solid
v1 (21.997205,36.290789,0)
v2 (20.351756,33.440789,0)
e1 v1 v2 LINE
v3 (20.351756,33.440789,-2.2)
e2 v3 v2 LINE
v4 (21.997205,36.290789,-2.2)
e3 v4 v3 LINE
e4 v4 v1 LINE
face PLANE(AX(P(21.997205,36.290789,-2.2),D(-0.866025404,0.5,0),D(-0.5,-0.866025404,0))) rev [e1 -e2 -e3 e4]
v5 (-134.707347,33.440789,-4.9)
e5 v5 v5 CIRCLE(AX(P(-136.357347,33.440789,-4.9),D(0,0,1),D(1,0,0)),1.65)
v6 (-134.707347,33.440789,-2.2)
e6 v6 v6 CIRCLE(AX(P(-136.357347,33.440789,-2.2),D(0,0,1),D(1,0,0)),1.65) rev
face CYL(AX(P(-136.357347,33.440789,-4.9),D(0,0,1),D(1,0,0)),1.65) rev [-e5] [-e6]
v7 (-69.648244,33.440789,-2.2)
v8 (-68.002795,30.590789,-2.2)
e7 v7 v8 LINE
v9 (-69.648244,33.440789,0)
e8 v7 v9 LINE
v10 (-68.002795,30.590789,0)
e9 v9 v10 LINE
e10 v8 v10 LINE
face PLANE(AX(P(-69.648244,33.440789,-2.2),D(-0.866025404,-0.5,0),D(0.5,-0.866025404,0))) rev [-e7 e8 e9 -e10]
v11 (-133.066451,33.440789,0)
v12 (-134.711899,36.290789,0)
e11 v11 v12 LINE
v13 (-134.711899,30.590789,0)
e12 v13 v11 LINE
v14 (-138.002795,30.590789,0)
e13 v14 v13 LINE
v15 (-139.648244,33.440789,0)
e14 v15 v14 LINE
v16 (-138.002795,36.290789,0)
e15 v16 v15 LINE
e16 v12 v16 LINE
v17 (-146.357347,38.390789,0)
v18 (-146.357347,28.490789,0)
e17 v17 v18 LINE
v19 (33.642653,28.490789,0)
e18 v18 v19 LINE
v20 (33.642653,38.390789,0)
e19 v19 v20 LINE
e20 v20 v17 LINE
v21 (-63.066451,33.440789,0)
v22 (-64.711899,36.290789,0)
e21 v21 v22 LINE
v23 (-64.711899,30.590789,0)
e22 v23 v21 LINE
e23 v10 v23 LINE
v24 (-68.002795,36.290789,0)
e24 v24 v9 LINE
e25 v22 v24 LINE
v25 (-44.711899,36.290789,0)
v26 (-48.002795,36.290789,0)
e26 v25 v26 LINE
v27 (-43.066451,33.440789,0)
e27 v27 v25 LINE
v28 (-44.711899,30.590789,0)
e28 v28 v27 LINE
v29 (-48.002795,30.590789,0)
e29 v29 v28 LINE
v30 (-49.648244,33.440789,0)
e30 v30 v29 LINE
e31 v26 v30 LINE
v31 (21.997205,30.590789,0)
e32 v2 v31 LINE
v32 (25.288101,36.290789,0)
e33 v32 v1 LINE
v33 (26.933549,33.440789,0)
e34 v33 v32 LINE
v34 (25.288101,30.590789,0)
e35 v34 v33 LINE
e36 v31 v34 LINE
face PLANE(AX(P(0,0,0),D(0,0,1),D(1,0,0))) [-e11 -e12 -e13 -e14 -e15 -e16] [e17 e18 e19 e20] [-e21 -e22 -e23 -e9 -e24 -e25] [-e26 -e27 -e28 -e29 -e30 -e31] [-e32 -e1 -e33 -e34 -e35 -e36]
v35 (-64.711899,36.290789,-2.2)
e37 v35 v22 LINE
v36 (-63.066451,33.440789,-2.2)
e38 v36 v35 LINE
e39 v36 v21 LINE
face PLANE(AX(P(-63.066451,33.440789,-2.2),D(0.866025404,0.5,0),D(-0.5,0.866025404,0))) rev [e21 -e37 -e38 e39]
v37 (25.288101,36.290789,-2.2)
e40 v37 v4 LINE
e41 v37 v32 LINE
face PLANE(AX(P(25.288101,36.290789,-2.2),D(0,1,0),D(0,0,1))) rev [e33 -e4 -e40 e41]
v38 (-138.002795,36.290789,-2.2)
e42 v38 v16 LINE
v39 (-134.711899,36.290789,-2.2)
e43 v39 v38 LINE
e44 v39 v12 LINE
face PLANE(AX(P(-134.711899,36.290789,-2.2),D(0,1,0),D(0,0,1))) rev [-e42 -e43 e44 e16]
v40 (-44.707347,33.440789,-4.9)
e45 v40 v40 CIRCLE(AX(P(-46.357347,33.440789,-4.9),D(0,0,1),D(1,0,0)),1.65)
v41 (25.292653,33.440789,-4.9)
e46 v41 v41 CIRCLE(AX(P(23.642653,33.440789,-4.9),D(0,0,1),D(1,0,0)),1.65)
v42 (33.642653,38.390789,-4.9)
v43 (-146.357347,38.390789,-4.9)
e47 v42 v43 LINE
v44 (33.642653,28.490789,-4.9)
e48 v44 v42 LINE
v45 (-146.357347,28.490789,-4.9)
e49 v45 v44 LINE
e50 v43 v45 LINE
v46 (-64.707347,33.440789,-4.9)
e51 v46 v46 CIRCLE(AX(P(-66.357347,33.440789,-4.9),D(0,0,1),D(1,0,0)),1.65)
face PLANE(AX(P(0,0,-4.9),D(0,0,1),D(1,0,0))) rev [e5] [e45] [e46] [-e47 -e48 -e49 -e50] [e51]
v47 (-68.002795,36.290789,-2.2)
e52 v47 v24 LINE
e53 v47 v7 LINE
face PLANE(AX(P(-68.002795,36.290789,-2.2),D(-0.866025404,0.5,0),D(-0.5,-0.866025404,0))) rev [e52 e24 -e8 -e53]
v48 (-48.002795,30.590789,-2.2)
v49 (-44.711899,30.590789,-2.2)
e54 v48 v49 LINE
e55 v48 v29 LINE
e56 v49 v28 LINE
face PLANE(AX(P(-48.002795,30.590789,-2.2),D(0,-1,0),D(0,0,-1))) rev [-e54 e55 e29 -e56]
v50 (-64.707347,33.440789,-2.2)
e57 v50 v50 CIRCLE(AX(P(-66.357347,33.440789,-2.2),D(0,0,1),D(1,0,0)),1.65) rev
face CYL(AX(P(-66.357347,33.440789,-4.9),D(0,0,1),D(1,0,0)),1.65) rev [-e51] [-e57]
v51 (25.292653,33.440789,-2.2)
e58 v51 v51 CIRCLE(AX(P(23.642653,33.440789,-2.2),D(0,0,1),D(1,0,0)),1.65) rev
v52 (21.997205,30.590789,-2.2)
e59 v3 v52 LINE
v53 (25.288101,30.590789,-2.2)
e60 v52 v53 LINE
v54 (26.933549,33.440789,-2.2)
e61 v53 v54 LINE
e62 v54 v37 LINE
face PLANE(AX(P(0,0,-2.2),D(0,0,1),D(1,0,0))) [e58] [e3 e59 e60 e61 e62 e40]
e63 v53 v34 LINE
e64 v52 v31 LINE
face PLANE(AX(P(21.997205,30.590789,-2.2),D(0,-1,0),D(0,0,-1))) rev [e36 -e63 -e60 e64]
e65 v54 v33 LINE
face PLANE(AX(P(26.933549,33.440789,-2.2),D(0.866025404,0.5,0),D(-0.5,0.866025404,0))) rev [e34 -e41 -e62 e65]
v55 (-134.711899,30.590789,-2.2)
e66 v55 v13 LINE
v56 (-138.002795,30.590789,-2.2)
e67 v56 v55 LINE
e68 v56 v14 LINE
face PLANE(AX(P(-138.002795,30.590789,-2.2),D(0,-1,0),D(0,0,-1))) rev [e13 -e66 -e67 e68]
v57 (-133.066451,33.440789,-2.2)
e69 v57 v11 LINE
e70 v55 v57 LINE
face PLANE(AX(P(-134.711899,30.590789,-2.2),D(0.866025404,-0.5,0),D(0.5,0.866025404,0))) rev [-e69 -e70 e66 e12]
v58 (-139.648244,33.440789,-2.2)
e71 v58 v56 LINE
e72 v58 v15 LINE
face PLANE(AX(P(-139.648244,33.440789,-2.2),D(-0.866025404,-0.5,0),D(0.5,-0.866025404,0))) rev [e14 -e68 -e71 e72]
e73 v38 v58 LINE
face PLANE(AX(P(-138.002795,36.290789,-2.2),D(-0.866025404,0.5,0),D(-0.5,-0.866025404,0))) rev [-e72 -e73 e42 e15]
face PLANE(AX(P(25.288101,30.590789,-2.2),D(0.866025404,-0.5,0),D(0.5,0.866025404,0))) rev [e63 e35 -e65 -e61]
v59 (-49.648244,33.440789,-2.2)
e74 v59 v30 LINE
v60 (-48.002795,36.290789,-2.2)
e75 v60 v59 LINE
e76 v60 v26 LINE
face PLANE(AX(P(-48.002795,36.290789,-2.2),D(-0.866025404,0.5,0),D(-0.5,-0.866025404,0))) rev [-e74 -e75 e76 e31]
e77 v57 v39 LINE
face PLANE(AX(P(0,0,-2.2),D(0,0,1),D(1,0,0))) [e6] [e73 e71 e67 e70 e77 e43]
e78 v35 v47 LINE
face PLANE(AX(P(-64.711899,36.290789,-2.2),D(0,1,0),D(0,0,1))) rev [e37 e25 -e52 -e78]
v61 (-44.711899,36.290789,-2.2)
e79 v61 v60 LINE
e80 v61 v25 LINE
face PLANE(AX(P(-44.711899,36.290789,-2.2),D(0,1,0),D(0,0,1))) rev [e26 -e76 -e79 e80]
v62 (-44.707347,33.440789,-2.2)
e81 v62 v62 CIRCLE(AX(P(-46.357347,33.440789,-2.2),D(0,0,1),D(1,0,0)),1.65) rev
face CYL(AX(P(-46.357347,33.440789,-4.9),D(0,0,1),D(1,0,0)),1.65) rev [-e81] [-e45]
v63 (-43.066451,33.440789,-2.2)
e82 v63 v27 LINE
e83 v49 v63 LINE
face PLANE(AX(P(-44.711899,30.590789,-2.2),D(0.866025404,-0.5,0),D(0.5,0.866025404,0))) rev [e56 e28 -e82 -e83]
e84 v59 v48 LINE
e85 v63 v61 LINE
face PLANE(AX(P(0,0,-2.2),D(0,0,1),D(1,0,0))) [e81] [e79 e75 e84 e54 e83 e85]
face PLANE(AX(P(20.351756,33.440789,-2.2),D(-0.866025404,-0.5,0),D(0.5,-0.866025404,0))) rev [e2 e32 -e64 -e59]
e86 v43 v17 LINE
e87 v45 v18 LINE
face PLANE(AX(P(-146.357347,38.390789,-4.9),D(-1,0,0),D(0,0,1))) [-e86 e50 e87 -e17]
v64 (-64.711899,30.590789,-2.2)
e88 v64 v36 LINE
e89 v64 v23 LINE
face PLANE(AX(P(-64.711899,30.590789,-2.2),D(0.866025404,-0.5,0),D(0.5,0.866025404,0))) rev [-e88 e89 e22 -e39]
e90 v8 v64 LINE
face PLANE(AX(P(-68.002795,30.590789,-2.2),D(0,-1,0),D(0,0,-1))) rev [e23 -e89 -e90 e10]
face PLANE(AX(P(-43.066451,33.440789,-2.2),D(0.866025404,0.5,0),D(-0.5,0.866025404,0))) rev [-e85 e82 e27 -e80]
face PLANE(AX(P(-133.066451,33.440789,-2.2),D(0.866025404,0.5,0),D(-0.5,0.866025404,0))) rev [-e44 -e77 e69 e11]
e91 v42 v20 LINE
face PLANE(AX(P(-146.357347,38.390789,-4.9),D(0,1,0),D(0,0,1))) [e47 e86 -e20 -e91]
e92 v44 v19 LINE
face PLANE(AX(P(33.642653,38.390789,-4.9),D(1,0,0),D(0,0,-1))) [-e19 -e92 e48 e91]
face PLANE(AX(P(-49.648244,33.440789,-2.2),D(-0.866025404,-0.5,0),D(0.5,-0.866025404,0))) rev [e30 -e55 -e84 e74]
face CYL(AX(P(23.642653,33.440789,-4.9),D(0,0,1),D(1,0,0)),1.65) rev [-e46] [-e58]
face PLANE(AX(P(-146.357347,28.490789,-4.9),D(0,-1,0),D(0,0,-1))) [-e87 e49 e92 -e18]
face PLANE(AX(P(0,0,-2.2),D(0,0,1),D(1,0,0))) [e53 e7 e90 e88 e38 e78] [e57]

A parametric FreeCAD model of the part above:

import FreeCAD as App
import Part
import Sketcher
Q = App.Units.Quantity

doc = App.newDocument("Part")
body = doc.addObject("PartDesign::Body", "Body")

# Sketch on XY plane
sketch1 = body.newObject("Sketcher::SketchObject", "Sketch")
sketch1.AttachmentSupport = (doc.getObject("XY_Plane"), [""])
sketch1.MapMode = "FlatFace"
sketch1.addGeometry([
    Part.LineSegment(App.Vector(-146, 38, 0), App.Vector(-146, 28, 0)),
    Part.LineSegment(App.Vector(-146, 28, 0), App.Vector(34, 28, 0)),
    Part.LineSegment(App.Vector(34, 28, 0), App.Vector(34, 38, 0)),
    Part.LineSegment(App.Vector(34, 38, 0), App.Vector(-146, 38, 0)),
], False)
sketch1.addConstraint([
    Sketcher.Constraint("Coincident", 0, 2, 1, 1),
    Sketcher.Constraint("Coincident", 1, 2, 2, 1),
    Sketcher.Constraint("Coincident", 2, 2, 3, 1),
    Sketcher.Constraint("Coincident", 3, 2, 0, 1),
    Sketcher.Constraint("Vertical", 0),
    Sketcher.Constraint("Horizontal", 1),
    Sketcher.Constraint("Vertical", 2),
    Sketcher.Constraint("Horizontal", 3),
    Sketcher.Constraint("DistanceX", 1, 1, 1, 2, 180.0),
    Sketcher.Constraint("DistanceY", 0, 2, 0, 1, 9.9),
    Sketcher.Constraint("DistanceY", -1, 1, 0, 2, 28.490789),
    Sketcher.Constraint("DistanceX", 0, 2, -1, 1, 146.357347),
])
pad1 = body.newObject("PartDesign::Pad", "Pad")
pad1.Profile = sketch1
pad1.Length = 4.9
pad1.Reversed = True

# Sketch on XY plane
sketch2 = body.newObject("Sketcher::SketchObject", "Sketch001")
sketch2.AttachmentSupport = (doc.getObject("XY_Plane"), [""])
sketch2.MapMode = "FlatFace"
sketch2.addGeometry([
    Part.Circle(App.Vector(-136.4, 33.4, 0), App.Vector(0, 0, 1), 1.6),
    Part.Circle(App.Vector(-66.4, 33.4, 0), App.Vector(0, 0, 1), 1.6),
    Part.Circle(App.Vector(-46.4, 33.4, 0), App.Vector(0, 0, 1), 1.6),
    Part.Circle(App.Vector(23.6, 33.4, 0), App.Vector(0, 0, 1), 1.6),
], False)
sketch2.addConstraint([
    Sketcher.Constraint("Equal", 0, 1),
    Sketcher.Constraint("Equal", 1, 2),
    Sketcher.Constraint("Equal", 2, 3),
    Sketcher.Constraint("Horizontal", 0, 3, 1, 3),
    Sketcher.Constraint("Horizontal", 1, 3, 2, 3),
    Sketcher.Constraint("Horizontal", 2, 3, 3, 3),
    Sketcher.Constraint("Diameter", 0, 3.3),
    Sketcher.Constraint("DistanceX", 0, 3, 1, 3, 70.0),
    Sketcher.Constraint("DistanceX", 1, 3, 2, 3, 20.0),
    Sketcher.Constraint("DistanceX", 2, 3, 3, 3, 70.0),
    Sketcher.Constraint("DistanceY", -1, 1, 0, 3, 33.440789),
    Sketcher.Constraint("DistanceX", 0, 3, -1, 1, 136.357347),
])
pocket1 = body.newObject("PartDesign::Pocket", "Pocket")
pocket1.Profile = sketch2
pocket1.Type = "ThroughAll"

# Sketch on XY plane
sketch3 = body.newObject("Sketcher::SketchObject", "Sketch002")
sketch3.AttachmentSupport = (doc.getObject("XY_Plane"), [""])
sketch3.MapMode = "FlatFace"
sketch3.addGeometry([
    Part.LineSegment(App.Vector(-134.7, 30.6, 0), App.Vector(-133.1, 33.4, 0)),  # 0
    Part.LineSegment(App.Vector(-133.1, 33.4, 0), App.Vector(-134.7, 36.3, 0)),  # 1
    Part.LineSegment(App.Vector(-134.7, 36.3, 0), App.Vector(-138, 36.3, 0)),  # 2
    Part.LineSegment(App.Vector(-138, 36.3, 0), App.Vector(-139.6, 33.4, 0)),  # 3
    Part.LineSegment(App.Vector(-139.6, 33.4, 0), App.Vector(-138, 30.6, 0)),  # 4
    Part.LineSegment(App.Vector(-138, 30.6, 0), App.Vector(-134.7, 30.6, 0)),  # 5
    Part.LineSegment(App.Vector(-64.7, 30.6, 0), App.Vector(-63.1, 33.4, 0)),  # 6
    Part.LineSegment(App.Vector(-63.1, 33.4, 0), App.Vector(-64.7, 36.3, 0)),  # 7
    Part.LineSegment(App.Vector(-64.7, 36.3, 0), App.Vector(-68, 36.3, 0)),  # 8
    Part.LineSegment(App.Vector(-68, 36.3, 0), App.Vector(-69.6, 33.4, 0)),  # 9
    Part.LineSegment(App.Vector(-69.6, 33.4, 0), App.Vector(-68, 30.6, 0)),  # 10
    Part.LineSegment(App.Vector(-68, 30.6, 0), App.Vector(-64.7, 30.6, 0)),  # 11
    Part.LineSegment(App.Vector(-44.7, 30.6, 0), App.Vector(-43.1, 33.4, 0)),  # 12
    Part.LineSegment(App.Vector(-43.1, 33.4, 0), App.Vector(-44.7, 36.3, 0)),  # 13
    Part.LineSegment(App.Vector(-44.7, 36.3, 0), App.Vector(-48, 36.3, 0)),  # 14
    Part.LineSegment(App.Vector(-48, 36.3, 0), App.Vector(-49.6, 33.4, 0)),  # 15
    Part.LineSegment(App.Vector(-49.6, 33.4, 0), App.Vector(-48, 30.6, 0)),  # 16
    Part.LineSegment(App.Vector(-48, 30.6, 0), App.Vector(-44.7, 30.6, 0)),  # 17
    Part.LineSegment(App.Vector(25.3, 30.6, 0), App.Vector(26.9, 33.4, 0)),  # 18
    Part.LineSegment(App.Vector(26.9, 33.4, 0), App.Vector(25.3, 36.3, 0)),  # 19
    Part.LineSegment(App.Vector(25.3, 36.3, 0), App.Vector(22, 36.3, 0)),  # 20
    Part.LineSegment(App.Vector(22, 36.3, 0), App.Vector(20.4, 33.4, 0)),  # 21
    Part.LineSegment(App.Vector(20.4, 33.4, 0), App.Vector(22, 30.6, 0)),  # 22
    Part.LineSegment(App.Vector(22, 30.6, 0), App.Vector(25.3, 30.6, 0)),  # 23
], False)
sketch3.addConstraint([
    Sketcher.Constraint("Coincident", 0, 2, 1, 1),
    Sketcher.Constraint("Coincident", 1, 2, 2, 1),
    Sketcher.Constraint("Coincident", 2, 2, 3, 1),
    Sketcher.Constraint("Coincident", 3, 2, 4, 1),
    Sketcher.Constraint("Coincident", 4, 2, 5, 1),
    Sketcher.Constraint("Coincident", 5, 2, 0, 1),
    Sketcher.Constraint("Coincident", 6, 2, 7, 1),
    Sketcher.Constraint("Coincident", 7, 2, 8, 1),
    Sketcher.Constraint("Coincident", 8, 2, 9, 1),
    Sketcher.Constraint("Coincident", 9, 2, 10, 1),
    Sketcher.Constraint("Coincident", 10, 2, 11, 1),
    Sketcher.Constraint("Coincident", 11, 2, 6, 1),
    Sketcher.Constraint("Coincident", 12, 2, 13, 1),
    Sketcher.Constraint("Coincident", 13, 2, 14, 1),
    Sketcher.Constraint("Coincident", 14, 2, 15, 1),
    Sketcher.Constraint("Coincident", 15, 2, 16, 1),
    Sketcher.Constraint("Coincident", 16, 2, 17, 1),
    Sketcher.Constraint("Coincident", 17, 2, 12, 1),
    Sketcher.Constraint("Coincident", 18, 2, 19, 1),
    Sketcher.Constraint("Coincident", 19, 2, 20, 1),
    Sketcher.Constraint("Coincident", 20, 2, 21, 1),
    Sketcher.Constraint("Coincident", 21, 2, 22, 1),
    Sketcher.Constraint("Coincident", 22, 2, 23, 1),
    Sketcher.Constraint("Coincident", 23, 2, 18, 1),
    Sketcher.Constraint("Horizontal", 2),
    Sketcher.Constraint("Horizontal", 5),
    Sketcher.Constraint("Horizontal", 8),
    Sketcher.Constraint("Horizontal", 11),
    Sketcher.Constraint("Horizontal", 14),
    Sketcher.Constraint("Horizontal", 17),
    Sketcher.Constraint("Horizontal", 20),
    Sketcher.Constraint("Horizontal", 23),
    Sketcher.Constraint("Parallel", 0, 3),
    Sketcher.Constraint("Parallel", 1, 4),
    Sketcher.Constraint("Parallel", 3, 6),
    Sketcher.Constraint("Parallel", 4, 7),
    Sketcher.Constraint("Parallel", 6, 9),
    Sketcher.Constraint("Parallel", 7, 10),
    Sketcher.Constraint("Parallel", 9, 12),
    Sketcher.Constraint("Parallel", 10, 13),
    Sketcher.Constraint("Parallel", 12, 15),
    Sketcher.Constraint("Parallel", 13, 16),
    Sketcher.Constraint("Parallel", 15, 18),
    Sketcher.Constraint("Parallel", 16, 19),
    Sketcher.Constraint("Parallel", 18, 21),
    Sketcher.Constraint("Parallel", 19, 22),
    Sketcher.Constraint("Horizontal", 0, 2, 3, 2),
    Sketcher.Constraint("Horizontal", 3, 2, 6, 2),
    Sketcher.Constraint("Horizontal", 2, 2, 7, 2),
    Sketcher.Constraint("Horizontal", 6, 2, 9, 2),
    Sketcher.Constraint("Horizontal", 5, 2, 10, 2),
    Sketcher.Constraint("Horizontal", 9, 2, 12, 2),
    Sketcher.Constraint("Horizontal", 8, 2, 13, 2),
    Sketcher.Constraint("Horizontal", 12, 2, 15, 2),
    Sketcher.Constraint("Horizontal", 11, 2, 16, 2),
    Sketcher.Constraint("Horizontal", 15, 2, 18, 2),
    Sketcher.Constraint("Horizontal", 14, 2, 19, 2),
    Sketcher.Constraint("Horizontal", 18, 2, 21, 2),
    Sketcher.Constraint("Horizontal", 17, 2, 22, 2),
    Sketcher.Constraint("Vertical", 2, 2, 4, 2),
    Sketcher.Constraint("Vertical", 1, 2, 5, 2),
    Sketcher.Constraint("Equal", 5, 8),
    Sketcher.Constraint("Equal", 11, 14),
    Sketcher.Constraint("Equal", 17, 20),
    Sketcher.Constraint("Angle", 0, Q("60 deg")),
    Sketcher.Constraint("DistanceX", 0, 2, 6, 2, 70.0),
    Sketcher.Constraint("DistanceX", 6, 2, 12, 2, 20.0),
    Sketcher.Constraint("DistanceX", 12, 2, 18, 2, 70.0),
    Sketcher.Constraint("DistanceY", 4, 2, 2, 2, 5.7),
    Sketcher.Constraint("DistanceX", 1, 2, -1, 1, 134.711899),
    Sketcher.Constraint("DistanceX", 2, 2, 2, 1, 3.290897),
    Sketcher.Constraint("DistanceY", -1, 1, 0, 2, 33.440789),
])
pocket2 = body.newObject("PartDesign::Pocket", "Pocket001")
pocket2.Profile = sketch3
pocket2.Length = 2.2

doc.recompute()
